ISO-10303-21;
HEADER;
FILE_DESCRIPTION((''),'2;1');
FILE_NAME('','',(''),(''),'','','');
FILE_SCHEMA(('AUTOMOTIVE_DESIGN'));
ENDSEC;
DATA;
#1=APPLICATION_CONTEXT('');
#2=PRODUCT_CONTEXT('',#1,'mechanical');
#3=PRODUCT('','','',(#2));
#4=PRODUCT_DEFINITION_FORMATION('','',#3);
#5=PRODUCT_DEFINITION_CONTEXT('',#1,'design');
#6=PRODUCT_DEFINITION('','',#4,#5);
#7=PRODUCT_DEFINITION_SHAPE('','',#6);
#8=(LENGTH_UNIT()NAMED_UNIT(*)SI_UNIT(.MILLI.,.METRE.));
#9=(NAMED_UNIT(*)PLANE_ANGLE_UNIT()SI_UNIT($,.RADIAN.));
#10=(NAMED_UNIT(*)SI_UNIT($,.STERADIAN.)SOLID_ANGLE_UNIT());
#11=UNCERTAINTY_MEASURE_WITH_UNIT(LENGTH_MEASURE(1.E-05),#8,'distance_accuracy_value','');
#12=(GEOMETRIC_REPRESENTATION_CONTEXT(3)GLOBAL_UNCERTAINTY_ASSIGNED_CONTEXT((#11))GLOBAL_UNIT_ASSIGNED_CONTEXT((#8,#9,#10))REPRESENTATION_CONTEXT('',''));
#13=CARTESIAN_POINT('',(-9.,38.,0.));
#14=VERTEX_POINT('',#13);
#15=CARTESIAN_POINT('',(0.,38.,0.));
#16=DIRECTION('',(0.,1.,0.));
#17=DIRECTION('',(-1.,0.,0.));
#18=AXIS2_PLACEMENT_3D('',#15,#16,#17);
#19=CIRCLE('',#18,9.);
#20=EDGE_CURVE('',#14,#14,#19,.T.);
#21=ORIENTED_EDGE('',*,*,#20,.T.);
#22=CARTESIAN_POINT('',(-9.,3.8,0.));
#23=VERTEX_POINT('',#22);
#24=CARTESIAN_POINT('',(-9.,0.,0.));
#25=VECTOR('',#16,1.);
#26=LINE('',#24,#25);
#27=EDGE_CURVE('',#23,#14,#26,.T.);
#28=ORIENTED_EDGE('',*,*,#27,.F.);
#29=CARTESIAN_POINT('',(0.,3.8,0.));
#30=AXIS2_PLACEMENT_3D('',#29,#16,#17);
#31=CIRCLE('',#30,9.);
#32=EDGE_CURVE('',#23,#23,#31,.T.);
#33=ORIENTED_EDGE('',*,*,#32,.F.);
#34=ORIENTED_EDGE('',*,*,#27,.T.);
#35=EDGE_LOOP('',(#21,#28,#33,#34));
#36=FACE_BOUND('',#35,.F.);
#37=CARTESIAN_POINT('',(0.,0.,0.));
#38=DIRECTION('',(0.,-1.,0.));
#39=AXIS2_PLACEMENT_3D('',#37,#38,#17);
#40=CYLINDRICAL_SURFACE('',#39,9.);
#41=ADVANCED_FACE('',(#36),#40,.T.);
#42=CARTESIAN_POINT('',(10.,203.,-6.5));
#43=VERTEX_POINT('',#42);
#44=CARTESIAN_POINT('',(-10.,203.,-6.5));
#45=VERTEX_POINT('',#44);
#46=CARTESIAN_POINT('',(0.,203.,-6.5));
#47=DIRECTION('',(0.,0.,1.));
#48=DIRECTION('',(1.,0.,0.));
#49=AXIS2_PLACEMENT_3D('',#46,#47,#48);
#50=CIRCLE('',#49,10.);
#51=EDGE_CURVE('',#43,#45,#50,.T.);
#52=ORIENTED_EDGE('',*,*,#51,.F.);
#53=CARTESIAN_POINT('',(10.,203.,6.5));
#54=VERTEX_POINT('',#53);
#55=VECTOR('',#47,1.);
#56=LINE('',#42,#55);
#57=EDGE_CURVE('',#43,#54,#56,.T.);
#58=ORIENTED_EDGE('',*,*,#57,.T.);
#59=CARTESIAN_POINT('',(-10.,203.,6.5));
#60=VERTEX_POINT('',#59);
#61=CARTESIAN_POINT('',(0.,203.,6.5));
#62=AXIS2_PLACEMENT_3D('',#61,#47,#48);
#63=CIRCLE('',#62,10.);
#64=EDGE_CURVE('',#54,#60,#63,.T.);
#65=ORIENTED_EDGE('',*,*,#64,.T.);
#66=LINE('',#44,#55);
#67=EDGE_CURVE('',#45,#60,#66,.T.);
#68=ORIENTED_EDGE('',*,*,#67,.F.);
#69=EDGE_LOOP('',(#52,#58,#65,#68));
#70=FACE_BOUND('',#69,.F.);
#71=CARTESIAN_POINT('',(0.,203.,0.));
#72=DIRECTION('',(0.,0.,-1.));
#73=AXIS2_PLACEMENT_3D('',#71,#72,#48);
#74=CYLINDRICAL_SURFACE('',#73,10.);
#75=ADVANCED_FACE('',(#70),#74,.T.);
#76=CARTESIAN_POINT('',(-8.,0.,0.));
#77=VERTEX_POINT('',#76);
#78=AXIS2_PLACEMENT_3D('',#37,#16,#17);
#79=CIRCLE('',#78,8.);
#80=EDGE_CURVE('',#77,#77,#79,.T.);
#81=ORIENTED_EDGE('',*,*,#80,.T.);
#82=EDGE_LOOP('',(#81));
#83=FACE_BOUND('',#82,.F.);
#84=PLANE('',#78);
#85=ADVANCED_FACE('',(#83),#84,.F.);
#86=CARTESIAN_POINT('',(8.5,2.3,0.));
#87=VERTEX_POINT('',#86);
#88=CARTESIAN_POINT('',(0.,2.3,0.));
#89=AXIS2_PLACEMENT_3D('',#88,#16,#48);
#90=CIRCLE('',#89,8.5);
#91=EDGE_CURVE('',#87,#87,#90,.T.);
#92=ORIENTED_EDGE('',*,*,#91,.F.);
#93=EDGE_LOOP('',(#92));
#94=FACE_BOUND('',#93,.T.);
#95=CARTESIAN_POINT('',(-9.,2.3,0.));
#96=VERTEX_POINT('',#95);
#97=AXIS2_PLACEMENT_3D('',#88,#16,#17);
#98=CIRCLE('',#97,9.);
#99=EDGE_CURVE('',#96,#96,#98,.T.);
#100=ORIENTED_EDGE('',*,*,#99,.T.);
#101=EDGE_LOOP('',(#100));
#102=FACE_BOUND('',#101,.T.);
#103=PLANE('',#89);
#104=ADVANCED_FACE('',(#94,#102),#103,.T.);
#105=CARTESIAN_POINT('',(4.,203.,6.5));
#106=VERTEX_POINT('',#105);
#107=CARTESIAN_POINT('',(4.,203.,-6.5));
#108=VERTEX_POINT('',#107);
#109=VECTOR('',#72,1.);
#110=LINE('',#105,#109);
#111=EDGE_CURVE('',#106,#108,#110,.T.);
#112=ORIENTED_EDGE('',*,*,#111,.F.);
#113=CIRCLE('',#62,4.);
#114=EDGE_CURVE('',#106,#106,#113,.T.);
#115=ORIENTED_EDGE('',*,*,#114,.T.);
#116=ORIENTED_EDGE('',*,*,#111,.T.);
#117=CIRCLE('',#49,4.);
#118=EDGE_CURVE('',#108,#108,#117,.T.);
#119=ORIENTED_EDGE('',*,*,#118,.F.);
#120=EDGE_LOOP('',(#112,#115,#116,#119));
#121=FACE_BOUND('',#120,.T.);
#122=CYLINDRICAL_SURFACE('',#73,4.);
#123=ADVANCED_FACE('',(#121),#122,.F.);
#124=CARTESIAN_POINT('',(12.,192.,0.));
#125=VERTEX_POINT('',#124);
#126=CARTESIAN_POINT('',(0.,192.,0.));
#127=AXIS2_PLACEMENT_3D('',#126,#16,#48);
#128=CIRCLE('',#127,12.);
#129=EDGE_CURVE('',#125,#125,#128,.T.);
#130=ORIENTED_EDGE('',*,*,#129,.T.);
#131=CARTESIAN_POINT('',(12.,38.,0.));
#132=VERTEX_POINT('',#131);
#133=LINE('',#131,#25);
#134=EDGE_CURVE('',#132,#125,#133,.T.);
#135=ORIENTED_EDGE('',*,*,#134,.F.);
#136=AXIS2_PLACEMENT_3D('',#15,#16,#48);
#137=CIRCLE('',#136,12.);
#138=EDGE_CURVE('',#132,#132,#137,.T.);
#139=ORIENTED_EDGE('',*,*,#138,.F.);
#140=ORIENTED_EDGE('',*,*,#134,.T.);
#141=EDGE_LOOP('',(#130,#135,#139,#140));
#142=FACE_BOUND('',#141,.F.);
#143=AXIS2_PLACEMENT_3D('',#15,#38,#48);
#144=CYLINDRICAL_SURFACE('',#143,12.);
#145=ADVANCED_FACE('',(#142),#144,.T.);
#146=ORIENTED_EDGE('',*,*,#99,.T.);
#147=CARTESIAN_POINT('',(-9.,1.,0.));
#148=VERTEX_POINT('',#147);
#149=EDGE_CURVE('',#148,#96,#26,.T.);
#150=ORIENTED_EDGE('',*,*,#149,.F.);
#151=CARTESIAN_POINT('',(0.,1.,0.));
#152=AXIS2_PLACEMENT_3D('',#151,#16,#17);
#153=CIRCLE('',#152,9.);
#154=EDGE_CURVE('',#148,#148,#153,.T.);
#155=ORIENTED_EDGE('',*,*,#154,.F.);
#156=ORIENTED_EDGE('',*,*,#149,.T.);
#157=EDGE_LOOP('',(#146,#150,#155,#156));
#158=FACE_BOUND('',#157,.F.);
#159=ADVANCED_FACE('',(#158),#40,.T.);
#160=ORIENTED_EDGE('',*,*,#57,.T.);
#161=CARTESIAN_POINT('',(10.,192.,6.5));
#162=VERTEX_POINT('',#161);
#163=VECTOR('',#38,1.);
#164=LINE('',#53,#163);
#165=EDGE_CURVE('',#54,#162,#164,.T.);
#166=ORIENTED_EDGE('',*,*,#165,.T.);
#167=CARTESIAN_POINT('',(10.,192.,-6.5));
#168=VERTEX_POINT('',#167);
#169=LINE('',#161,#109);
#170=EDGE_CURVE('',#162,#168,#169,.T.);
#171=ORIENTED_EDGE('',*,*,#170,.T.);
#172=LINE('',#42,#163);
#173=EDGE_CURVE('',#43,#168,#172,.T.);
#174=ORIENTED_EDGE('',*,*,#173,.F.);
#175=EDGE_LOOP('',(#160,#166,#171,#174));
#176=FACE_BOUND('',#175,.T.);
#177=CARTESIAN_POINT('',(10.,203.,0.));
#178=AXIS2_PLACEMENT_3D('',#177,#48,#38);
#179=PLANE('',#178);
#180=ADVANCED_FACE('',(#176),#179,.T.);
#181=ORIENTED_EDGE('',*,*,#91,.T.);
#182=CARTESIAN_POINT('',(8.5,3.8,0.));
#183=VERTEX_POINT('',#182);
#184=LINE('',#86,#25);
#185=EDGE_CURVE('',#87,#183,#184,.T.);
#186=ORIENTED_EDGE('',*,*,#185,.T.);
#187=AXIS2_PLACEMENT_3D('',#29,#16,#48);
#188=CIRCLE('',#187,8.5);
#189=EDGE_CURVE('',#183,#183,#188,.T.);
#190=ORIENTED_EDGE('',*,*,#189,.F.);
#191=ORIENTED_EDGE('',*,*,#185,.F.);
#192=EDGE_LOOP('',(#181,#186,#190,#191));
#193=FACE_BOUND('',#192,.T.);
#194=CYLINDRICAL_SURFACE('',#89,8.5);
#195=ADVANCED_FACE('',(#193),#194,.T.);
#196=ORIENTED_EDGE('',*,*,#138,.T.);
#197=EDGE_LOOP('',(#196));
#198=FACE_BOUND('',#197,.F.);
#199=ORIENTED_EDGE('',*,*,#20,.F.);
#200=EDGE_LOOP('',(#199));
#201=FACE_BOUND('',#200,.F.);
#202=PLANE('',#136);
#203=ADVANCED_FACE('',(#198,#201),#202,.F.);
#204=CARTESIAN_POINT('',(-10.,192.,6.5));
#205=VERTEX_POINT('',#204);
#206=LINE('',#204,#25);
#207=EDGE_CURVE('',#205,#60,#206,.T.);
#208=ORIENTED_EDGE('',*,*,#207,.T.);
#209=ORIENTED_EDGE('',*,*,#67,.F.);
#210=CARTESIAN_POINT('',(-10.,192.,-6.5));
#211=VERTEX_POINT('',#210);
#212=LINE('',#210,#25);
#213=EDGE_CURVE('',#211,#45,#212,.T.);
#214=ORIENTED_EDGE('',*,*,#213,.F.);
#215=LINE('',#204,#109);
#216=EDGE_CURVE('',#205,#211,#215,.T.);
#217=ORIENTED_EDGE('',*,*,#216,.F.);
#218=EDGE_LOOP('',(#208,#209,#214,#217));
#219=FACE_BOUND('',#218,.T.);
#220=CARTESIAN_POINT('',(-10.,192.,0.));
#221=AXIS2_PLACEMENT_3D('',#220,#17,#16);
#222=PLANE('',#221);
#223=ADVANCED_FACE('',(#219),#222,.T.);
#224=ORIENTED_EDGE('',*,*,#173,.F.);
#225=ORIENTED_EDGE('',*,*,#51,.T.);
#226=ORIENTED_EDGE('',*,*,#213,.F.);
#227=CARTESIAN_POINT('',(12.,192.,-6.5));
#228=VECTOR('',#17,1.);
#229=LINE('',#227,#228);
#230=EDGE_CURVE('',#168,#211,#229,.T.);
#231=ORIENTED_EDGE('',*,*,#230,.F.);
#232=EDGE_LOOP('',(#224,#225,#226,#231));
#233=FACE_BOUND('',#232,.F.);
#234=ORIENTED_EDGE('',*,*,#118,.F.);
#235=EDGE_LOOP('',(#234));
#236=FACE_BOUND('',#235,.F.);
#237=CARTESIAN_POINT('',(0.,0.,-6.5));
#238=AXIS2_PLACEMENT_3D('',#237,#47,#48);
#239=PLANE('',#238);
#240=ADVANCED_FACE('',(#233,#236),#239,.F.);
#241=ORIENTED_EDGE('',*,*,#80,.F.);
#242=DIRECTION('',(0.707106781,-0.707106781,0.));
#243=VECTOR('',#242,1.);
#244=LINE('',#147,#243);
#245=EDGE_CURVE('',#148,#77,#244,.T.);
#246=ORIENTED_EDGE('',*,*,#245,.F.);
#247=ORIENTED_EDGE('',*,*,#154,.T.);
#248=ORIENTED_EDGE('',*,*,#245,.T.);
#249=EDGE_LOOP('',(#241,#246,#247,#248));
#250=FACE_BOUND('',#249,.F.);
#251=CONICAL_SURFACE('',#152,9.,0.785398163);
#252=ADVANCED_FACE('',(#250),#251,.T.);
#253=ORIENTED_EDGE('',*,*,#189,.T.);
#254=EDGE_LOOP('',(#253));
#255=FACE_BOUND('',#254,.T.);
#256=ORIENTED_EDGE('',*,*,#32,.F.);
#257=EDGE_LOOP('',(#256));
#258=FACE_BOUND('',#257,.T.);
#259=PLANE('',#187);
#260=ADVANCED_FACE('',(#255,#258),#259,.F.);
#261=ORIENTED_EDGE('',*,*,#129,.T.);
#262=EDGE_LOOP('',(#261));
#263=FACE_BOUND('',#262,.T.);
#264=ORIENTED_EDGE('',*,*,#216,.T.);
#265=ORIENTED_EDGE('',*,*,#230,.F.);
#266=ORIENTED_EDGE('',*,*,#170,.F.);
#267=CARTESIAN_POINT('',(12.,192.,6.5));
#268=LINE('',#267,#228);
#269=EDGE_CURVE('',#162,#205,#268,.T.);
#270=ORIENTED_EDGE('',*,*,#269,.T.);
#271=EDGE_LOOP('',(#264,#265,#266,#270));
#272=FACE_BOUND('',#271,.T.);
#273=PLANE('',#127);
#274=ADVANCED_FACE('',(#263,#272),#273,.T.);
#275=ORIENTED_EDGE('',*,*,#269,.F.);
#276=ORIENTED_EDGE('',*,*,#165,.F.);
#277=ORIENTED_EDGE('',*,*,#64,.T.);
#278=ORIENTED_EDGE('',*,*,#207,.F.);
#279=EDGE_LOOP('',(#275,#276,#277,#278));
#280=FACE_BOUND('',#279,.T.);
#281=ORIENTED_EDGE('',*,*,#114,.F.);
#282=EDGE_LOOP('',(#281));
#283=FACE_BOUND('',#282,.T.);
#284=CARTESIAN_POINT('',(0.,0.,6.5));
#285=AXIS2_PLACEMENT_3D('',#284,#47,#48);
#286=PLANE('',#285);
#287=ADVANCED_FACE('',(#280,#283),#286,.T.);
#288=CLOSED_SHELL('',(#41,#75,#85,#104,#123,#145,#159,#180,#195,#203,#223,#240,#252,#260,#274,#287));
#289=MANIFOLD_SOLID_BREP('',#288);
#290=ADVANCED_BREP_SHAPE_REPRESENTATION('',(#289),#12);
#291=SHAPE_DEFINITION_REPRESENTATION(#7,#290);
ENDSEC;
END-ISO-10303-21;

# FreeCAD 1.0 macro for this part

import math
import FreeCAD as App
import Part
import Sketcher


def edges_at(feature, points):
    """Names of the edges that pass closest to the given points."""
    edges = feature.Shape.Edges
    near = lambda p: min(range(len(edges)), key=lambda i: edges[i].distToShape(Part.Vertex(*p))[0])
    return sorted({f"Edge{near(p) + 1}" for p in points})

doc = App.newDocument("Part")
body = doc.addObject("PartDesign::Body", "Body")

sketch1 = body.newObject("Sketcher::SketchObject", "Sketch")
sketch1.AttachmentSupport = (doc.getObject("XZ_Plane"), [""])
sketch1.MapMode = "FlatFace"
sketch1.addGeometry(Part.Circle(App.Vector(0, 0, 0), App.Vector(0, 0, 1), 9), False)
sketch1.addConstraint([
    Sketcher.Constraint("Coincident", 0, 3, -1, 1),
    Sketcher.Constraint("Diameter", 0, 18.0),
])
pad1 = body.newObject("PartDesign::Pad", "Pad")
pad1.Profile = sketch1
pad1.Length = 38
pad1.Reversed = True

sketch2 = body.newObject("Sketcher::SketchObject", "Sketch001")
sketch2.AttachmentSupport = (doc.getObject("XZ_Plane"), [""])
sketch2.MapMode = "FlatFace"
sketch2.AttachmentOffset = App.Placement(App.Vector(0, 0, -38), App.Rotation())
sketch2.addGeometry(Part.Circle(App.Vector(0, 0, 0), App.Vector(0, 0, 1), 12), False)
sketch2.addConstraint([
    Sketcher.Constraint("Coincident", 0, 3, -1, 1),
    Sketcher.Constraint("Diameter", 0, 24.0),
])
pad2 = body.newObject("PartDesign::Pad", "Pad001")
pad2.Profile = sketch2
pad2.Length = 154
pad2.Reversed = True

sketch3 = body.newObject("Sketcher::SketchObject", "Sketch002")
sketch3.AttachmentSupport = (doc.getObject("XY_Plane"), [""])
sketch3.MapMode = "FlatFace"
sketch3.addGeometry([
    Part.LineSegment(App.Vector(10, 192, 0), App.Vector(10, 203, 0)),
    Part.ArcOfCircle(Part.Circle(App.Vector(0, 203, 0), App.Vector(0, 0, 1), 10), math.radians(0), math.radians(180)),
    Part.LineSegment(App.Vector(-10, 203, 0), App.Vector(-10, 192, 0)),
    Part.LineSegment(App.Vector(-10, 192, 0), App.Vector(10, 192, 0)),
    Part.Circle(App.Vector(0, 203, 0), App.Vector(0, 0, 1), 4),
], False)
sketch3.addConstraint([
    Sketcher.Constraint("Tangent", 0, 2, 1, 1),
    Sketcher.Constraint("Tangent", 1, 2, 2, 1),
    Sketcher.Constraint("Coincident", 2, 2, 3, 1),
    Sketcher.Constraint("Coincident", 3, 2, 0, 1),
    Sketcher.Constraint("Vertical", 0),
    Sketcher.Constraint("Vertical", 2),
    Sketcher.Constraint("Horizontal", 3),
    Sketcher.Constraint("Coincident", 4, 3, 1, 3),
    Sketcher.Constraint("PointOnObject", 1, 3, -2),
    Sketcher.Constraint("Diameter", 4, 8.0),
    Sketcher.Constraint("Radius", 1, 10.0),
    Sketcher.Constraint("DistanceY", -1, 1, 1, 3, 203.0),
    Sketcher.Constraint("DistanceY", 0, 1, 0, 2, 11.0),
])
pad3 = body.newObject("PartDesign::Pad", "Pad002")
pad3.Profile = sketch3
pad3.Length = 13
pad3.Midplane = True

sketch4 = body.newObject("Sketcher::SketchObject", "Sketch003")
sketch4.AttachmentSupport = (doc.getObject("XY_Plane"), [""])
sketch4.MapMode = "FlatFace"
sketch4.addGeometry([
    Part.LineSegment(App.Vector(8.5, 2.3, 0), App.Vector(9, 2.3, 0)),
    Part.LineSegment(App.Vector(9, 2.3, 0), App.Vector(9, 3.8, 0)),
    Part.LineSegment(App.Vector(9, 3.8, 0), App.Vector(8.5, 3.8, 0)),
    Part.LineSegment(App.Vector(8.5, 3.8, 0), App.Vector(8.5, 2.3, 0)),
], False)
sketch4.addConstraint([
    Sketcher.Constraint("Coincident", 0, 2, 1, 1),
    Sketcher.Constraint("Coincident", 1, 2, 2, 1),
    Sketcher.Constraint("Coincident", 2, 2, 3, 1),
    Sketcher.Constraint("Coincident", 3, 2, 0, 1),
    Sketcher.Constraint("Horizontal", 0),
    Sketcher.Constraint("Vertical", 1),
    Sketcher.Constraint("Horizontal", 2),
    Sketcher.Constraint("Vertical", 3),
    Sketcher.Constraint("DistanceX", 0, 1, 0, 2, 0.5),
    Sketcher.Constraint("DistanceY", 1, 1, 1, 2, 1.5),
    Sketcher.Constraint("DistanceY", -1, 1, 1, 2, 3.8),
    Sketcher.Constraint("DistanceX", -1, 1, 0, 2, 9.0),
])
groove = body.newObject("PartDesign::Groove", "Groove")
groove.Profile = sketch4
groove.ReferenceAxis = (sketch4, ["V_Axis"])
groove.Angle = 360
doc.recompute()

chamfer = body.newObject("PartDesign::Chamfer", "Chamfer")
chamfer.Base = (groove, edges_at(groove, [(9, 0, 0)]))
chamfer.Size = 1

doc.recompute()
